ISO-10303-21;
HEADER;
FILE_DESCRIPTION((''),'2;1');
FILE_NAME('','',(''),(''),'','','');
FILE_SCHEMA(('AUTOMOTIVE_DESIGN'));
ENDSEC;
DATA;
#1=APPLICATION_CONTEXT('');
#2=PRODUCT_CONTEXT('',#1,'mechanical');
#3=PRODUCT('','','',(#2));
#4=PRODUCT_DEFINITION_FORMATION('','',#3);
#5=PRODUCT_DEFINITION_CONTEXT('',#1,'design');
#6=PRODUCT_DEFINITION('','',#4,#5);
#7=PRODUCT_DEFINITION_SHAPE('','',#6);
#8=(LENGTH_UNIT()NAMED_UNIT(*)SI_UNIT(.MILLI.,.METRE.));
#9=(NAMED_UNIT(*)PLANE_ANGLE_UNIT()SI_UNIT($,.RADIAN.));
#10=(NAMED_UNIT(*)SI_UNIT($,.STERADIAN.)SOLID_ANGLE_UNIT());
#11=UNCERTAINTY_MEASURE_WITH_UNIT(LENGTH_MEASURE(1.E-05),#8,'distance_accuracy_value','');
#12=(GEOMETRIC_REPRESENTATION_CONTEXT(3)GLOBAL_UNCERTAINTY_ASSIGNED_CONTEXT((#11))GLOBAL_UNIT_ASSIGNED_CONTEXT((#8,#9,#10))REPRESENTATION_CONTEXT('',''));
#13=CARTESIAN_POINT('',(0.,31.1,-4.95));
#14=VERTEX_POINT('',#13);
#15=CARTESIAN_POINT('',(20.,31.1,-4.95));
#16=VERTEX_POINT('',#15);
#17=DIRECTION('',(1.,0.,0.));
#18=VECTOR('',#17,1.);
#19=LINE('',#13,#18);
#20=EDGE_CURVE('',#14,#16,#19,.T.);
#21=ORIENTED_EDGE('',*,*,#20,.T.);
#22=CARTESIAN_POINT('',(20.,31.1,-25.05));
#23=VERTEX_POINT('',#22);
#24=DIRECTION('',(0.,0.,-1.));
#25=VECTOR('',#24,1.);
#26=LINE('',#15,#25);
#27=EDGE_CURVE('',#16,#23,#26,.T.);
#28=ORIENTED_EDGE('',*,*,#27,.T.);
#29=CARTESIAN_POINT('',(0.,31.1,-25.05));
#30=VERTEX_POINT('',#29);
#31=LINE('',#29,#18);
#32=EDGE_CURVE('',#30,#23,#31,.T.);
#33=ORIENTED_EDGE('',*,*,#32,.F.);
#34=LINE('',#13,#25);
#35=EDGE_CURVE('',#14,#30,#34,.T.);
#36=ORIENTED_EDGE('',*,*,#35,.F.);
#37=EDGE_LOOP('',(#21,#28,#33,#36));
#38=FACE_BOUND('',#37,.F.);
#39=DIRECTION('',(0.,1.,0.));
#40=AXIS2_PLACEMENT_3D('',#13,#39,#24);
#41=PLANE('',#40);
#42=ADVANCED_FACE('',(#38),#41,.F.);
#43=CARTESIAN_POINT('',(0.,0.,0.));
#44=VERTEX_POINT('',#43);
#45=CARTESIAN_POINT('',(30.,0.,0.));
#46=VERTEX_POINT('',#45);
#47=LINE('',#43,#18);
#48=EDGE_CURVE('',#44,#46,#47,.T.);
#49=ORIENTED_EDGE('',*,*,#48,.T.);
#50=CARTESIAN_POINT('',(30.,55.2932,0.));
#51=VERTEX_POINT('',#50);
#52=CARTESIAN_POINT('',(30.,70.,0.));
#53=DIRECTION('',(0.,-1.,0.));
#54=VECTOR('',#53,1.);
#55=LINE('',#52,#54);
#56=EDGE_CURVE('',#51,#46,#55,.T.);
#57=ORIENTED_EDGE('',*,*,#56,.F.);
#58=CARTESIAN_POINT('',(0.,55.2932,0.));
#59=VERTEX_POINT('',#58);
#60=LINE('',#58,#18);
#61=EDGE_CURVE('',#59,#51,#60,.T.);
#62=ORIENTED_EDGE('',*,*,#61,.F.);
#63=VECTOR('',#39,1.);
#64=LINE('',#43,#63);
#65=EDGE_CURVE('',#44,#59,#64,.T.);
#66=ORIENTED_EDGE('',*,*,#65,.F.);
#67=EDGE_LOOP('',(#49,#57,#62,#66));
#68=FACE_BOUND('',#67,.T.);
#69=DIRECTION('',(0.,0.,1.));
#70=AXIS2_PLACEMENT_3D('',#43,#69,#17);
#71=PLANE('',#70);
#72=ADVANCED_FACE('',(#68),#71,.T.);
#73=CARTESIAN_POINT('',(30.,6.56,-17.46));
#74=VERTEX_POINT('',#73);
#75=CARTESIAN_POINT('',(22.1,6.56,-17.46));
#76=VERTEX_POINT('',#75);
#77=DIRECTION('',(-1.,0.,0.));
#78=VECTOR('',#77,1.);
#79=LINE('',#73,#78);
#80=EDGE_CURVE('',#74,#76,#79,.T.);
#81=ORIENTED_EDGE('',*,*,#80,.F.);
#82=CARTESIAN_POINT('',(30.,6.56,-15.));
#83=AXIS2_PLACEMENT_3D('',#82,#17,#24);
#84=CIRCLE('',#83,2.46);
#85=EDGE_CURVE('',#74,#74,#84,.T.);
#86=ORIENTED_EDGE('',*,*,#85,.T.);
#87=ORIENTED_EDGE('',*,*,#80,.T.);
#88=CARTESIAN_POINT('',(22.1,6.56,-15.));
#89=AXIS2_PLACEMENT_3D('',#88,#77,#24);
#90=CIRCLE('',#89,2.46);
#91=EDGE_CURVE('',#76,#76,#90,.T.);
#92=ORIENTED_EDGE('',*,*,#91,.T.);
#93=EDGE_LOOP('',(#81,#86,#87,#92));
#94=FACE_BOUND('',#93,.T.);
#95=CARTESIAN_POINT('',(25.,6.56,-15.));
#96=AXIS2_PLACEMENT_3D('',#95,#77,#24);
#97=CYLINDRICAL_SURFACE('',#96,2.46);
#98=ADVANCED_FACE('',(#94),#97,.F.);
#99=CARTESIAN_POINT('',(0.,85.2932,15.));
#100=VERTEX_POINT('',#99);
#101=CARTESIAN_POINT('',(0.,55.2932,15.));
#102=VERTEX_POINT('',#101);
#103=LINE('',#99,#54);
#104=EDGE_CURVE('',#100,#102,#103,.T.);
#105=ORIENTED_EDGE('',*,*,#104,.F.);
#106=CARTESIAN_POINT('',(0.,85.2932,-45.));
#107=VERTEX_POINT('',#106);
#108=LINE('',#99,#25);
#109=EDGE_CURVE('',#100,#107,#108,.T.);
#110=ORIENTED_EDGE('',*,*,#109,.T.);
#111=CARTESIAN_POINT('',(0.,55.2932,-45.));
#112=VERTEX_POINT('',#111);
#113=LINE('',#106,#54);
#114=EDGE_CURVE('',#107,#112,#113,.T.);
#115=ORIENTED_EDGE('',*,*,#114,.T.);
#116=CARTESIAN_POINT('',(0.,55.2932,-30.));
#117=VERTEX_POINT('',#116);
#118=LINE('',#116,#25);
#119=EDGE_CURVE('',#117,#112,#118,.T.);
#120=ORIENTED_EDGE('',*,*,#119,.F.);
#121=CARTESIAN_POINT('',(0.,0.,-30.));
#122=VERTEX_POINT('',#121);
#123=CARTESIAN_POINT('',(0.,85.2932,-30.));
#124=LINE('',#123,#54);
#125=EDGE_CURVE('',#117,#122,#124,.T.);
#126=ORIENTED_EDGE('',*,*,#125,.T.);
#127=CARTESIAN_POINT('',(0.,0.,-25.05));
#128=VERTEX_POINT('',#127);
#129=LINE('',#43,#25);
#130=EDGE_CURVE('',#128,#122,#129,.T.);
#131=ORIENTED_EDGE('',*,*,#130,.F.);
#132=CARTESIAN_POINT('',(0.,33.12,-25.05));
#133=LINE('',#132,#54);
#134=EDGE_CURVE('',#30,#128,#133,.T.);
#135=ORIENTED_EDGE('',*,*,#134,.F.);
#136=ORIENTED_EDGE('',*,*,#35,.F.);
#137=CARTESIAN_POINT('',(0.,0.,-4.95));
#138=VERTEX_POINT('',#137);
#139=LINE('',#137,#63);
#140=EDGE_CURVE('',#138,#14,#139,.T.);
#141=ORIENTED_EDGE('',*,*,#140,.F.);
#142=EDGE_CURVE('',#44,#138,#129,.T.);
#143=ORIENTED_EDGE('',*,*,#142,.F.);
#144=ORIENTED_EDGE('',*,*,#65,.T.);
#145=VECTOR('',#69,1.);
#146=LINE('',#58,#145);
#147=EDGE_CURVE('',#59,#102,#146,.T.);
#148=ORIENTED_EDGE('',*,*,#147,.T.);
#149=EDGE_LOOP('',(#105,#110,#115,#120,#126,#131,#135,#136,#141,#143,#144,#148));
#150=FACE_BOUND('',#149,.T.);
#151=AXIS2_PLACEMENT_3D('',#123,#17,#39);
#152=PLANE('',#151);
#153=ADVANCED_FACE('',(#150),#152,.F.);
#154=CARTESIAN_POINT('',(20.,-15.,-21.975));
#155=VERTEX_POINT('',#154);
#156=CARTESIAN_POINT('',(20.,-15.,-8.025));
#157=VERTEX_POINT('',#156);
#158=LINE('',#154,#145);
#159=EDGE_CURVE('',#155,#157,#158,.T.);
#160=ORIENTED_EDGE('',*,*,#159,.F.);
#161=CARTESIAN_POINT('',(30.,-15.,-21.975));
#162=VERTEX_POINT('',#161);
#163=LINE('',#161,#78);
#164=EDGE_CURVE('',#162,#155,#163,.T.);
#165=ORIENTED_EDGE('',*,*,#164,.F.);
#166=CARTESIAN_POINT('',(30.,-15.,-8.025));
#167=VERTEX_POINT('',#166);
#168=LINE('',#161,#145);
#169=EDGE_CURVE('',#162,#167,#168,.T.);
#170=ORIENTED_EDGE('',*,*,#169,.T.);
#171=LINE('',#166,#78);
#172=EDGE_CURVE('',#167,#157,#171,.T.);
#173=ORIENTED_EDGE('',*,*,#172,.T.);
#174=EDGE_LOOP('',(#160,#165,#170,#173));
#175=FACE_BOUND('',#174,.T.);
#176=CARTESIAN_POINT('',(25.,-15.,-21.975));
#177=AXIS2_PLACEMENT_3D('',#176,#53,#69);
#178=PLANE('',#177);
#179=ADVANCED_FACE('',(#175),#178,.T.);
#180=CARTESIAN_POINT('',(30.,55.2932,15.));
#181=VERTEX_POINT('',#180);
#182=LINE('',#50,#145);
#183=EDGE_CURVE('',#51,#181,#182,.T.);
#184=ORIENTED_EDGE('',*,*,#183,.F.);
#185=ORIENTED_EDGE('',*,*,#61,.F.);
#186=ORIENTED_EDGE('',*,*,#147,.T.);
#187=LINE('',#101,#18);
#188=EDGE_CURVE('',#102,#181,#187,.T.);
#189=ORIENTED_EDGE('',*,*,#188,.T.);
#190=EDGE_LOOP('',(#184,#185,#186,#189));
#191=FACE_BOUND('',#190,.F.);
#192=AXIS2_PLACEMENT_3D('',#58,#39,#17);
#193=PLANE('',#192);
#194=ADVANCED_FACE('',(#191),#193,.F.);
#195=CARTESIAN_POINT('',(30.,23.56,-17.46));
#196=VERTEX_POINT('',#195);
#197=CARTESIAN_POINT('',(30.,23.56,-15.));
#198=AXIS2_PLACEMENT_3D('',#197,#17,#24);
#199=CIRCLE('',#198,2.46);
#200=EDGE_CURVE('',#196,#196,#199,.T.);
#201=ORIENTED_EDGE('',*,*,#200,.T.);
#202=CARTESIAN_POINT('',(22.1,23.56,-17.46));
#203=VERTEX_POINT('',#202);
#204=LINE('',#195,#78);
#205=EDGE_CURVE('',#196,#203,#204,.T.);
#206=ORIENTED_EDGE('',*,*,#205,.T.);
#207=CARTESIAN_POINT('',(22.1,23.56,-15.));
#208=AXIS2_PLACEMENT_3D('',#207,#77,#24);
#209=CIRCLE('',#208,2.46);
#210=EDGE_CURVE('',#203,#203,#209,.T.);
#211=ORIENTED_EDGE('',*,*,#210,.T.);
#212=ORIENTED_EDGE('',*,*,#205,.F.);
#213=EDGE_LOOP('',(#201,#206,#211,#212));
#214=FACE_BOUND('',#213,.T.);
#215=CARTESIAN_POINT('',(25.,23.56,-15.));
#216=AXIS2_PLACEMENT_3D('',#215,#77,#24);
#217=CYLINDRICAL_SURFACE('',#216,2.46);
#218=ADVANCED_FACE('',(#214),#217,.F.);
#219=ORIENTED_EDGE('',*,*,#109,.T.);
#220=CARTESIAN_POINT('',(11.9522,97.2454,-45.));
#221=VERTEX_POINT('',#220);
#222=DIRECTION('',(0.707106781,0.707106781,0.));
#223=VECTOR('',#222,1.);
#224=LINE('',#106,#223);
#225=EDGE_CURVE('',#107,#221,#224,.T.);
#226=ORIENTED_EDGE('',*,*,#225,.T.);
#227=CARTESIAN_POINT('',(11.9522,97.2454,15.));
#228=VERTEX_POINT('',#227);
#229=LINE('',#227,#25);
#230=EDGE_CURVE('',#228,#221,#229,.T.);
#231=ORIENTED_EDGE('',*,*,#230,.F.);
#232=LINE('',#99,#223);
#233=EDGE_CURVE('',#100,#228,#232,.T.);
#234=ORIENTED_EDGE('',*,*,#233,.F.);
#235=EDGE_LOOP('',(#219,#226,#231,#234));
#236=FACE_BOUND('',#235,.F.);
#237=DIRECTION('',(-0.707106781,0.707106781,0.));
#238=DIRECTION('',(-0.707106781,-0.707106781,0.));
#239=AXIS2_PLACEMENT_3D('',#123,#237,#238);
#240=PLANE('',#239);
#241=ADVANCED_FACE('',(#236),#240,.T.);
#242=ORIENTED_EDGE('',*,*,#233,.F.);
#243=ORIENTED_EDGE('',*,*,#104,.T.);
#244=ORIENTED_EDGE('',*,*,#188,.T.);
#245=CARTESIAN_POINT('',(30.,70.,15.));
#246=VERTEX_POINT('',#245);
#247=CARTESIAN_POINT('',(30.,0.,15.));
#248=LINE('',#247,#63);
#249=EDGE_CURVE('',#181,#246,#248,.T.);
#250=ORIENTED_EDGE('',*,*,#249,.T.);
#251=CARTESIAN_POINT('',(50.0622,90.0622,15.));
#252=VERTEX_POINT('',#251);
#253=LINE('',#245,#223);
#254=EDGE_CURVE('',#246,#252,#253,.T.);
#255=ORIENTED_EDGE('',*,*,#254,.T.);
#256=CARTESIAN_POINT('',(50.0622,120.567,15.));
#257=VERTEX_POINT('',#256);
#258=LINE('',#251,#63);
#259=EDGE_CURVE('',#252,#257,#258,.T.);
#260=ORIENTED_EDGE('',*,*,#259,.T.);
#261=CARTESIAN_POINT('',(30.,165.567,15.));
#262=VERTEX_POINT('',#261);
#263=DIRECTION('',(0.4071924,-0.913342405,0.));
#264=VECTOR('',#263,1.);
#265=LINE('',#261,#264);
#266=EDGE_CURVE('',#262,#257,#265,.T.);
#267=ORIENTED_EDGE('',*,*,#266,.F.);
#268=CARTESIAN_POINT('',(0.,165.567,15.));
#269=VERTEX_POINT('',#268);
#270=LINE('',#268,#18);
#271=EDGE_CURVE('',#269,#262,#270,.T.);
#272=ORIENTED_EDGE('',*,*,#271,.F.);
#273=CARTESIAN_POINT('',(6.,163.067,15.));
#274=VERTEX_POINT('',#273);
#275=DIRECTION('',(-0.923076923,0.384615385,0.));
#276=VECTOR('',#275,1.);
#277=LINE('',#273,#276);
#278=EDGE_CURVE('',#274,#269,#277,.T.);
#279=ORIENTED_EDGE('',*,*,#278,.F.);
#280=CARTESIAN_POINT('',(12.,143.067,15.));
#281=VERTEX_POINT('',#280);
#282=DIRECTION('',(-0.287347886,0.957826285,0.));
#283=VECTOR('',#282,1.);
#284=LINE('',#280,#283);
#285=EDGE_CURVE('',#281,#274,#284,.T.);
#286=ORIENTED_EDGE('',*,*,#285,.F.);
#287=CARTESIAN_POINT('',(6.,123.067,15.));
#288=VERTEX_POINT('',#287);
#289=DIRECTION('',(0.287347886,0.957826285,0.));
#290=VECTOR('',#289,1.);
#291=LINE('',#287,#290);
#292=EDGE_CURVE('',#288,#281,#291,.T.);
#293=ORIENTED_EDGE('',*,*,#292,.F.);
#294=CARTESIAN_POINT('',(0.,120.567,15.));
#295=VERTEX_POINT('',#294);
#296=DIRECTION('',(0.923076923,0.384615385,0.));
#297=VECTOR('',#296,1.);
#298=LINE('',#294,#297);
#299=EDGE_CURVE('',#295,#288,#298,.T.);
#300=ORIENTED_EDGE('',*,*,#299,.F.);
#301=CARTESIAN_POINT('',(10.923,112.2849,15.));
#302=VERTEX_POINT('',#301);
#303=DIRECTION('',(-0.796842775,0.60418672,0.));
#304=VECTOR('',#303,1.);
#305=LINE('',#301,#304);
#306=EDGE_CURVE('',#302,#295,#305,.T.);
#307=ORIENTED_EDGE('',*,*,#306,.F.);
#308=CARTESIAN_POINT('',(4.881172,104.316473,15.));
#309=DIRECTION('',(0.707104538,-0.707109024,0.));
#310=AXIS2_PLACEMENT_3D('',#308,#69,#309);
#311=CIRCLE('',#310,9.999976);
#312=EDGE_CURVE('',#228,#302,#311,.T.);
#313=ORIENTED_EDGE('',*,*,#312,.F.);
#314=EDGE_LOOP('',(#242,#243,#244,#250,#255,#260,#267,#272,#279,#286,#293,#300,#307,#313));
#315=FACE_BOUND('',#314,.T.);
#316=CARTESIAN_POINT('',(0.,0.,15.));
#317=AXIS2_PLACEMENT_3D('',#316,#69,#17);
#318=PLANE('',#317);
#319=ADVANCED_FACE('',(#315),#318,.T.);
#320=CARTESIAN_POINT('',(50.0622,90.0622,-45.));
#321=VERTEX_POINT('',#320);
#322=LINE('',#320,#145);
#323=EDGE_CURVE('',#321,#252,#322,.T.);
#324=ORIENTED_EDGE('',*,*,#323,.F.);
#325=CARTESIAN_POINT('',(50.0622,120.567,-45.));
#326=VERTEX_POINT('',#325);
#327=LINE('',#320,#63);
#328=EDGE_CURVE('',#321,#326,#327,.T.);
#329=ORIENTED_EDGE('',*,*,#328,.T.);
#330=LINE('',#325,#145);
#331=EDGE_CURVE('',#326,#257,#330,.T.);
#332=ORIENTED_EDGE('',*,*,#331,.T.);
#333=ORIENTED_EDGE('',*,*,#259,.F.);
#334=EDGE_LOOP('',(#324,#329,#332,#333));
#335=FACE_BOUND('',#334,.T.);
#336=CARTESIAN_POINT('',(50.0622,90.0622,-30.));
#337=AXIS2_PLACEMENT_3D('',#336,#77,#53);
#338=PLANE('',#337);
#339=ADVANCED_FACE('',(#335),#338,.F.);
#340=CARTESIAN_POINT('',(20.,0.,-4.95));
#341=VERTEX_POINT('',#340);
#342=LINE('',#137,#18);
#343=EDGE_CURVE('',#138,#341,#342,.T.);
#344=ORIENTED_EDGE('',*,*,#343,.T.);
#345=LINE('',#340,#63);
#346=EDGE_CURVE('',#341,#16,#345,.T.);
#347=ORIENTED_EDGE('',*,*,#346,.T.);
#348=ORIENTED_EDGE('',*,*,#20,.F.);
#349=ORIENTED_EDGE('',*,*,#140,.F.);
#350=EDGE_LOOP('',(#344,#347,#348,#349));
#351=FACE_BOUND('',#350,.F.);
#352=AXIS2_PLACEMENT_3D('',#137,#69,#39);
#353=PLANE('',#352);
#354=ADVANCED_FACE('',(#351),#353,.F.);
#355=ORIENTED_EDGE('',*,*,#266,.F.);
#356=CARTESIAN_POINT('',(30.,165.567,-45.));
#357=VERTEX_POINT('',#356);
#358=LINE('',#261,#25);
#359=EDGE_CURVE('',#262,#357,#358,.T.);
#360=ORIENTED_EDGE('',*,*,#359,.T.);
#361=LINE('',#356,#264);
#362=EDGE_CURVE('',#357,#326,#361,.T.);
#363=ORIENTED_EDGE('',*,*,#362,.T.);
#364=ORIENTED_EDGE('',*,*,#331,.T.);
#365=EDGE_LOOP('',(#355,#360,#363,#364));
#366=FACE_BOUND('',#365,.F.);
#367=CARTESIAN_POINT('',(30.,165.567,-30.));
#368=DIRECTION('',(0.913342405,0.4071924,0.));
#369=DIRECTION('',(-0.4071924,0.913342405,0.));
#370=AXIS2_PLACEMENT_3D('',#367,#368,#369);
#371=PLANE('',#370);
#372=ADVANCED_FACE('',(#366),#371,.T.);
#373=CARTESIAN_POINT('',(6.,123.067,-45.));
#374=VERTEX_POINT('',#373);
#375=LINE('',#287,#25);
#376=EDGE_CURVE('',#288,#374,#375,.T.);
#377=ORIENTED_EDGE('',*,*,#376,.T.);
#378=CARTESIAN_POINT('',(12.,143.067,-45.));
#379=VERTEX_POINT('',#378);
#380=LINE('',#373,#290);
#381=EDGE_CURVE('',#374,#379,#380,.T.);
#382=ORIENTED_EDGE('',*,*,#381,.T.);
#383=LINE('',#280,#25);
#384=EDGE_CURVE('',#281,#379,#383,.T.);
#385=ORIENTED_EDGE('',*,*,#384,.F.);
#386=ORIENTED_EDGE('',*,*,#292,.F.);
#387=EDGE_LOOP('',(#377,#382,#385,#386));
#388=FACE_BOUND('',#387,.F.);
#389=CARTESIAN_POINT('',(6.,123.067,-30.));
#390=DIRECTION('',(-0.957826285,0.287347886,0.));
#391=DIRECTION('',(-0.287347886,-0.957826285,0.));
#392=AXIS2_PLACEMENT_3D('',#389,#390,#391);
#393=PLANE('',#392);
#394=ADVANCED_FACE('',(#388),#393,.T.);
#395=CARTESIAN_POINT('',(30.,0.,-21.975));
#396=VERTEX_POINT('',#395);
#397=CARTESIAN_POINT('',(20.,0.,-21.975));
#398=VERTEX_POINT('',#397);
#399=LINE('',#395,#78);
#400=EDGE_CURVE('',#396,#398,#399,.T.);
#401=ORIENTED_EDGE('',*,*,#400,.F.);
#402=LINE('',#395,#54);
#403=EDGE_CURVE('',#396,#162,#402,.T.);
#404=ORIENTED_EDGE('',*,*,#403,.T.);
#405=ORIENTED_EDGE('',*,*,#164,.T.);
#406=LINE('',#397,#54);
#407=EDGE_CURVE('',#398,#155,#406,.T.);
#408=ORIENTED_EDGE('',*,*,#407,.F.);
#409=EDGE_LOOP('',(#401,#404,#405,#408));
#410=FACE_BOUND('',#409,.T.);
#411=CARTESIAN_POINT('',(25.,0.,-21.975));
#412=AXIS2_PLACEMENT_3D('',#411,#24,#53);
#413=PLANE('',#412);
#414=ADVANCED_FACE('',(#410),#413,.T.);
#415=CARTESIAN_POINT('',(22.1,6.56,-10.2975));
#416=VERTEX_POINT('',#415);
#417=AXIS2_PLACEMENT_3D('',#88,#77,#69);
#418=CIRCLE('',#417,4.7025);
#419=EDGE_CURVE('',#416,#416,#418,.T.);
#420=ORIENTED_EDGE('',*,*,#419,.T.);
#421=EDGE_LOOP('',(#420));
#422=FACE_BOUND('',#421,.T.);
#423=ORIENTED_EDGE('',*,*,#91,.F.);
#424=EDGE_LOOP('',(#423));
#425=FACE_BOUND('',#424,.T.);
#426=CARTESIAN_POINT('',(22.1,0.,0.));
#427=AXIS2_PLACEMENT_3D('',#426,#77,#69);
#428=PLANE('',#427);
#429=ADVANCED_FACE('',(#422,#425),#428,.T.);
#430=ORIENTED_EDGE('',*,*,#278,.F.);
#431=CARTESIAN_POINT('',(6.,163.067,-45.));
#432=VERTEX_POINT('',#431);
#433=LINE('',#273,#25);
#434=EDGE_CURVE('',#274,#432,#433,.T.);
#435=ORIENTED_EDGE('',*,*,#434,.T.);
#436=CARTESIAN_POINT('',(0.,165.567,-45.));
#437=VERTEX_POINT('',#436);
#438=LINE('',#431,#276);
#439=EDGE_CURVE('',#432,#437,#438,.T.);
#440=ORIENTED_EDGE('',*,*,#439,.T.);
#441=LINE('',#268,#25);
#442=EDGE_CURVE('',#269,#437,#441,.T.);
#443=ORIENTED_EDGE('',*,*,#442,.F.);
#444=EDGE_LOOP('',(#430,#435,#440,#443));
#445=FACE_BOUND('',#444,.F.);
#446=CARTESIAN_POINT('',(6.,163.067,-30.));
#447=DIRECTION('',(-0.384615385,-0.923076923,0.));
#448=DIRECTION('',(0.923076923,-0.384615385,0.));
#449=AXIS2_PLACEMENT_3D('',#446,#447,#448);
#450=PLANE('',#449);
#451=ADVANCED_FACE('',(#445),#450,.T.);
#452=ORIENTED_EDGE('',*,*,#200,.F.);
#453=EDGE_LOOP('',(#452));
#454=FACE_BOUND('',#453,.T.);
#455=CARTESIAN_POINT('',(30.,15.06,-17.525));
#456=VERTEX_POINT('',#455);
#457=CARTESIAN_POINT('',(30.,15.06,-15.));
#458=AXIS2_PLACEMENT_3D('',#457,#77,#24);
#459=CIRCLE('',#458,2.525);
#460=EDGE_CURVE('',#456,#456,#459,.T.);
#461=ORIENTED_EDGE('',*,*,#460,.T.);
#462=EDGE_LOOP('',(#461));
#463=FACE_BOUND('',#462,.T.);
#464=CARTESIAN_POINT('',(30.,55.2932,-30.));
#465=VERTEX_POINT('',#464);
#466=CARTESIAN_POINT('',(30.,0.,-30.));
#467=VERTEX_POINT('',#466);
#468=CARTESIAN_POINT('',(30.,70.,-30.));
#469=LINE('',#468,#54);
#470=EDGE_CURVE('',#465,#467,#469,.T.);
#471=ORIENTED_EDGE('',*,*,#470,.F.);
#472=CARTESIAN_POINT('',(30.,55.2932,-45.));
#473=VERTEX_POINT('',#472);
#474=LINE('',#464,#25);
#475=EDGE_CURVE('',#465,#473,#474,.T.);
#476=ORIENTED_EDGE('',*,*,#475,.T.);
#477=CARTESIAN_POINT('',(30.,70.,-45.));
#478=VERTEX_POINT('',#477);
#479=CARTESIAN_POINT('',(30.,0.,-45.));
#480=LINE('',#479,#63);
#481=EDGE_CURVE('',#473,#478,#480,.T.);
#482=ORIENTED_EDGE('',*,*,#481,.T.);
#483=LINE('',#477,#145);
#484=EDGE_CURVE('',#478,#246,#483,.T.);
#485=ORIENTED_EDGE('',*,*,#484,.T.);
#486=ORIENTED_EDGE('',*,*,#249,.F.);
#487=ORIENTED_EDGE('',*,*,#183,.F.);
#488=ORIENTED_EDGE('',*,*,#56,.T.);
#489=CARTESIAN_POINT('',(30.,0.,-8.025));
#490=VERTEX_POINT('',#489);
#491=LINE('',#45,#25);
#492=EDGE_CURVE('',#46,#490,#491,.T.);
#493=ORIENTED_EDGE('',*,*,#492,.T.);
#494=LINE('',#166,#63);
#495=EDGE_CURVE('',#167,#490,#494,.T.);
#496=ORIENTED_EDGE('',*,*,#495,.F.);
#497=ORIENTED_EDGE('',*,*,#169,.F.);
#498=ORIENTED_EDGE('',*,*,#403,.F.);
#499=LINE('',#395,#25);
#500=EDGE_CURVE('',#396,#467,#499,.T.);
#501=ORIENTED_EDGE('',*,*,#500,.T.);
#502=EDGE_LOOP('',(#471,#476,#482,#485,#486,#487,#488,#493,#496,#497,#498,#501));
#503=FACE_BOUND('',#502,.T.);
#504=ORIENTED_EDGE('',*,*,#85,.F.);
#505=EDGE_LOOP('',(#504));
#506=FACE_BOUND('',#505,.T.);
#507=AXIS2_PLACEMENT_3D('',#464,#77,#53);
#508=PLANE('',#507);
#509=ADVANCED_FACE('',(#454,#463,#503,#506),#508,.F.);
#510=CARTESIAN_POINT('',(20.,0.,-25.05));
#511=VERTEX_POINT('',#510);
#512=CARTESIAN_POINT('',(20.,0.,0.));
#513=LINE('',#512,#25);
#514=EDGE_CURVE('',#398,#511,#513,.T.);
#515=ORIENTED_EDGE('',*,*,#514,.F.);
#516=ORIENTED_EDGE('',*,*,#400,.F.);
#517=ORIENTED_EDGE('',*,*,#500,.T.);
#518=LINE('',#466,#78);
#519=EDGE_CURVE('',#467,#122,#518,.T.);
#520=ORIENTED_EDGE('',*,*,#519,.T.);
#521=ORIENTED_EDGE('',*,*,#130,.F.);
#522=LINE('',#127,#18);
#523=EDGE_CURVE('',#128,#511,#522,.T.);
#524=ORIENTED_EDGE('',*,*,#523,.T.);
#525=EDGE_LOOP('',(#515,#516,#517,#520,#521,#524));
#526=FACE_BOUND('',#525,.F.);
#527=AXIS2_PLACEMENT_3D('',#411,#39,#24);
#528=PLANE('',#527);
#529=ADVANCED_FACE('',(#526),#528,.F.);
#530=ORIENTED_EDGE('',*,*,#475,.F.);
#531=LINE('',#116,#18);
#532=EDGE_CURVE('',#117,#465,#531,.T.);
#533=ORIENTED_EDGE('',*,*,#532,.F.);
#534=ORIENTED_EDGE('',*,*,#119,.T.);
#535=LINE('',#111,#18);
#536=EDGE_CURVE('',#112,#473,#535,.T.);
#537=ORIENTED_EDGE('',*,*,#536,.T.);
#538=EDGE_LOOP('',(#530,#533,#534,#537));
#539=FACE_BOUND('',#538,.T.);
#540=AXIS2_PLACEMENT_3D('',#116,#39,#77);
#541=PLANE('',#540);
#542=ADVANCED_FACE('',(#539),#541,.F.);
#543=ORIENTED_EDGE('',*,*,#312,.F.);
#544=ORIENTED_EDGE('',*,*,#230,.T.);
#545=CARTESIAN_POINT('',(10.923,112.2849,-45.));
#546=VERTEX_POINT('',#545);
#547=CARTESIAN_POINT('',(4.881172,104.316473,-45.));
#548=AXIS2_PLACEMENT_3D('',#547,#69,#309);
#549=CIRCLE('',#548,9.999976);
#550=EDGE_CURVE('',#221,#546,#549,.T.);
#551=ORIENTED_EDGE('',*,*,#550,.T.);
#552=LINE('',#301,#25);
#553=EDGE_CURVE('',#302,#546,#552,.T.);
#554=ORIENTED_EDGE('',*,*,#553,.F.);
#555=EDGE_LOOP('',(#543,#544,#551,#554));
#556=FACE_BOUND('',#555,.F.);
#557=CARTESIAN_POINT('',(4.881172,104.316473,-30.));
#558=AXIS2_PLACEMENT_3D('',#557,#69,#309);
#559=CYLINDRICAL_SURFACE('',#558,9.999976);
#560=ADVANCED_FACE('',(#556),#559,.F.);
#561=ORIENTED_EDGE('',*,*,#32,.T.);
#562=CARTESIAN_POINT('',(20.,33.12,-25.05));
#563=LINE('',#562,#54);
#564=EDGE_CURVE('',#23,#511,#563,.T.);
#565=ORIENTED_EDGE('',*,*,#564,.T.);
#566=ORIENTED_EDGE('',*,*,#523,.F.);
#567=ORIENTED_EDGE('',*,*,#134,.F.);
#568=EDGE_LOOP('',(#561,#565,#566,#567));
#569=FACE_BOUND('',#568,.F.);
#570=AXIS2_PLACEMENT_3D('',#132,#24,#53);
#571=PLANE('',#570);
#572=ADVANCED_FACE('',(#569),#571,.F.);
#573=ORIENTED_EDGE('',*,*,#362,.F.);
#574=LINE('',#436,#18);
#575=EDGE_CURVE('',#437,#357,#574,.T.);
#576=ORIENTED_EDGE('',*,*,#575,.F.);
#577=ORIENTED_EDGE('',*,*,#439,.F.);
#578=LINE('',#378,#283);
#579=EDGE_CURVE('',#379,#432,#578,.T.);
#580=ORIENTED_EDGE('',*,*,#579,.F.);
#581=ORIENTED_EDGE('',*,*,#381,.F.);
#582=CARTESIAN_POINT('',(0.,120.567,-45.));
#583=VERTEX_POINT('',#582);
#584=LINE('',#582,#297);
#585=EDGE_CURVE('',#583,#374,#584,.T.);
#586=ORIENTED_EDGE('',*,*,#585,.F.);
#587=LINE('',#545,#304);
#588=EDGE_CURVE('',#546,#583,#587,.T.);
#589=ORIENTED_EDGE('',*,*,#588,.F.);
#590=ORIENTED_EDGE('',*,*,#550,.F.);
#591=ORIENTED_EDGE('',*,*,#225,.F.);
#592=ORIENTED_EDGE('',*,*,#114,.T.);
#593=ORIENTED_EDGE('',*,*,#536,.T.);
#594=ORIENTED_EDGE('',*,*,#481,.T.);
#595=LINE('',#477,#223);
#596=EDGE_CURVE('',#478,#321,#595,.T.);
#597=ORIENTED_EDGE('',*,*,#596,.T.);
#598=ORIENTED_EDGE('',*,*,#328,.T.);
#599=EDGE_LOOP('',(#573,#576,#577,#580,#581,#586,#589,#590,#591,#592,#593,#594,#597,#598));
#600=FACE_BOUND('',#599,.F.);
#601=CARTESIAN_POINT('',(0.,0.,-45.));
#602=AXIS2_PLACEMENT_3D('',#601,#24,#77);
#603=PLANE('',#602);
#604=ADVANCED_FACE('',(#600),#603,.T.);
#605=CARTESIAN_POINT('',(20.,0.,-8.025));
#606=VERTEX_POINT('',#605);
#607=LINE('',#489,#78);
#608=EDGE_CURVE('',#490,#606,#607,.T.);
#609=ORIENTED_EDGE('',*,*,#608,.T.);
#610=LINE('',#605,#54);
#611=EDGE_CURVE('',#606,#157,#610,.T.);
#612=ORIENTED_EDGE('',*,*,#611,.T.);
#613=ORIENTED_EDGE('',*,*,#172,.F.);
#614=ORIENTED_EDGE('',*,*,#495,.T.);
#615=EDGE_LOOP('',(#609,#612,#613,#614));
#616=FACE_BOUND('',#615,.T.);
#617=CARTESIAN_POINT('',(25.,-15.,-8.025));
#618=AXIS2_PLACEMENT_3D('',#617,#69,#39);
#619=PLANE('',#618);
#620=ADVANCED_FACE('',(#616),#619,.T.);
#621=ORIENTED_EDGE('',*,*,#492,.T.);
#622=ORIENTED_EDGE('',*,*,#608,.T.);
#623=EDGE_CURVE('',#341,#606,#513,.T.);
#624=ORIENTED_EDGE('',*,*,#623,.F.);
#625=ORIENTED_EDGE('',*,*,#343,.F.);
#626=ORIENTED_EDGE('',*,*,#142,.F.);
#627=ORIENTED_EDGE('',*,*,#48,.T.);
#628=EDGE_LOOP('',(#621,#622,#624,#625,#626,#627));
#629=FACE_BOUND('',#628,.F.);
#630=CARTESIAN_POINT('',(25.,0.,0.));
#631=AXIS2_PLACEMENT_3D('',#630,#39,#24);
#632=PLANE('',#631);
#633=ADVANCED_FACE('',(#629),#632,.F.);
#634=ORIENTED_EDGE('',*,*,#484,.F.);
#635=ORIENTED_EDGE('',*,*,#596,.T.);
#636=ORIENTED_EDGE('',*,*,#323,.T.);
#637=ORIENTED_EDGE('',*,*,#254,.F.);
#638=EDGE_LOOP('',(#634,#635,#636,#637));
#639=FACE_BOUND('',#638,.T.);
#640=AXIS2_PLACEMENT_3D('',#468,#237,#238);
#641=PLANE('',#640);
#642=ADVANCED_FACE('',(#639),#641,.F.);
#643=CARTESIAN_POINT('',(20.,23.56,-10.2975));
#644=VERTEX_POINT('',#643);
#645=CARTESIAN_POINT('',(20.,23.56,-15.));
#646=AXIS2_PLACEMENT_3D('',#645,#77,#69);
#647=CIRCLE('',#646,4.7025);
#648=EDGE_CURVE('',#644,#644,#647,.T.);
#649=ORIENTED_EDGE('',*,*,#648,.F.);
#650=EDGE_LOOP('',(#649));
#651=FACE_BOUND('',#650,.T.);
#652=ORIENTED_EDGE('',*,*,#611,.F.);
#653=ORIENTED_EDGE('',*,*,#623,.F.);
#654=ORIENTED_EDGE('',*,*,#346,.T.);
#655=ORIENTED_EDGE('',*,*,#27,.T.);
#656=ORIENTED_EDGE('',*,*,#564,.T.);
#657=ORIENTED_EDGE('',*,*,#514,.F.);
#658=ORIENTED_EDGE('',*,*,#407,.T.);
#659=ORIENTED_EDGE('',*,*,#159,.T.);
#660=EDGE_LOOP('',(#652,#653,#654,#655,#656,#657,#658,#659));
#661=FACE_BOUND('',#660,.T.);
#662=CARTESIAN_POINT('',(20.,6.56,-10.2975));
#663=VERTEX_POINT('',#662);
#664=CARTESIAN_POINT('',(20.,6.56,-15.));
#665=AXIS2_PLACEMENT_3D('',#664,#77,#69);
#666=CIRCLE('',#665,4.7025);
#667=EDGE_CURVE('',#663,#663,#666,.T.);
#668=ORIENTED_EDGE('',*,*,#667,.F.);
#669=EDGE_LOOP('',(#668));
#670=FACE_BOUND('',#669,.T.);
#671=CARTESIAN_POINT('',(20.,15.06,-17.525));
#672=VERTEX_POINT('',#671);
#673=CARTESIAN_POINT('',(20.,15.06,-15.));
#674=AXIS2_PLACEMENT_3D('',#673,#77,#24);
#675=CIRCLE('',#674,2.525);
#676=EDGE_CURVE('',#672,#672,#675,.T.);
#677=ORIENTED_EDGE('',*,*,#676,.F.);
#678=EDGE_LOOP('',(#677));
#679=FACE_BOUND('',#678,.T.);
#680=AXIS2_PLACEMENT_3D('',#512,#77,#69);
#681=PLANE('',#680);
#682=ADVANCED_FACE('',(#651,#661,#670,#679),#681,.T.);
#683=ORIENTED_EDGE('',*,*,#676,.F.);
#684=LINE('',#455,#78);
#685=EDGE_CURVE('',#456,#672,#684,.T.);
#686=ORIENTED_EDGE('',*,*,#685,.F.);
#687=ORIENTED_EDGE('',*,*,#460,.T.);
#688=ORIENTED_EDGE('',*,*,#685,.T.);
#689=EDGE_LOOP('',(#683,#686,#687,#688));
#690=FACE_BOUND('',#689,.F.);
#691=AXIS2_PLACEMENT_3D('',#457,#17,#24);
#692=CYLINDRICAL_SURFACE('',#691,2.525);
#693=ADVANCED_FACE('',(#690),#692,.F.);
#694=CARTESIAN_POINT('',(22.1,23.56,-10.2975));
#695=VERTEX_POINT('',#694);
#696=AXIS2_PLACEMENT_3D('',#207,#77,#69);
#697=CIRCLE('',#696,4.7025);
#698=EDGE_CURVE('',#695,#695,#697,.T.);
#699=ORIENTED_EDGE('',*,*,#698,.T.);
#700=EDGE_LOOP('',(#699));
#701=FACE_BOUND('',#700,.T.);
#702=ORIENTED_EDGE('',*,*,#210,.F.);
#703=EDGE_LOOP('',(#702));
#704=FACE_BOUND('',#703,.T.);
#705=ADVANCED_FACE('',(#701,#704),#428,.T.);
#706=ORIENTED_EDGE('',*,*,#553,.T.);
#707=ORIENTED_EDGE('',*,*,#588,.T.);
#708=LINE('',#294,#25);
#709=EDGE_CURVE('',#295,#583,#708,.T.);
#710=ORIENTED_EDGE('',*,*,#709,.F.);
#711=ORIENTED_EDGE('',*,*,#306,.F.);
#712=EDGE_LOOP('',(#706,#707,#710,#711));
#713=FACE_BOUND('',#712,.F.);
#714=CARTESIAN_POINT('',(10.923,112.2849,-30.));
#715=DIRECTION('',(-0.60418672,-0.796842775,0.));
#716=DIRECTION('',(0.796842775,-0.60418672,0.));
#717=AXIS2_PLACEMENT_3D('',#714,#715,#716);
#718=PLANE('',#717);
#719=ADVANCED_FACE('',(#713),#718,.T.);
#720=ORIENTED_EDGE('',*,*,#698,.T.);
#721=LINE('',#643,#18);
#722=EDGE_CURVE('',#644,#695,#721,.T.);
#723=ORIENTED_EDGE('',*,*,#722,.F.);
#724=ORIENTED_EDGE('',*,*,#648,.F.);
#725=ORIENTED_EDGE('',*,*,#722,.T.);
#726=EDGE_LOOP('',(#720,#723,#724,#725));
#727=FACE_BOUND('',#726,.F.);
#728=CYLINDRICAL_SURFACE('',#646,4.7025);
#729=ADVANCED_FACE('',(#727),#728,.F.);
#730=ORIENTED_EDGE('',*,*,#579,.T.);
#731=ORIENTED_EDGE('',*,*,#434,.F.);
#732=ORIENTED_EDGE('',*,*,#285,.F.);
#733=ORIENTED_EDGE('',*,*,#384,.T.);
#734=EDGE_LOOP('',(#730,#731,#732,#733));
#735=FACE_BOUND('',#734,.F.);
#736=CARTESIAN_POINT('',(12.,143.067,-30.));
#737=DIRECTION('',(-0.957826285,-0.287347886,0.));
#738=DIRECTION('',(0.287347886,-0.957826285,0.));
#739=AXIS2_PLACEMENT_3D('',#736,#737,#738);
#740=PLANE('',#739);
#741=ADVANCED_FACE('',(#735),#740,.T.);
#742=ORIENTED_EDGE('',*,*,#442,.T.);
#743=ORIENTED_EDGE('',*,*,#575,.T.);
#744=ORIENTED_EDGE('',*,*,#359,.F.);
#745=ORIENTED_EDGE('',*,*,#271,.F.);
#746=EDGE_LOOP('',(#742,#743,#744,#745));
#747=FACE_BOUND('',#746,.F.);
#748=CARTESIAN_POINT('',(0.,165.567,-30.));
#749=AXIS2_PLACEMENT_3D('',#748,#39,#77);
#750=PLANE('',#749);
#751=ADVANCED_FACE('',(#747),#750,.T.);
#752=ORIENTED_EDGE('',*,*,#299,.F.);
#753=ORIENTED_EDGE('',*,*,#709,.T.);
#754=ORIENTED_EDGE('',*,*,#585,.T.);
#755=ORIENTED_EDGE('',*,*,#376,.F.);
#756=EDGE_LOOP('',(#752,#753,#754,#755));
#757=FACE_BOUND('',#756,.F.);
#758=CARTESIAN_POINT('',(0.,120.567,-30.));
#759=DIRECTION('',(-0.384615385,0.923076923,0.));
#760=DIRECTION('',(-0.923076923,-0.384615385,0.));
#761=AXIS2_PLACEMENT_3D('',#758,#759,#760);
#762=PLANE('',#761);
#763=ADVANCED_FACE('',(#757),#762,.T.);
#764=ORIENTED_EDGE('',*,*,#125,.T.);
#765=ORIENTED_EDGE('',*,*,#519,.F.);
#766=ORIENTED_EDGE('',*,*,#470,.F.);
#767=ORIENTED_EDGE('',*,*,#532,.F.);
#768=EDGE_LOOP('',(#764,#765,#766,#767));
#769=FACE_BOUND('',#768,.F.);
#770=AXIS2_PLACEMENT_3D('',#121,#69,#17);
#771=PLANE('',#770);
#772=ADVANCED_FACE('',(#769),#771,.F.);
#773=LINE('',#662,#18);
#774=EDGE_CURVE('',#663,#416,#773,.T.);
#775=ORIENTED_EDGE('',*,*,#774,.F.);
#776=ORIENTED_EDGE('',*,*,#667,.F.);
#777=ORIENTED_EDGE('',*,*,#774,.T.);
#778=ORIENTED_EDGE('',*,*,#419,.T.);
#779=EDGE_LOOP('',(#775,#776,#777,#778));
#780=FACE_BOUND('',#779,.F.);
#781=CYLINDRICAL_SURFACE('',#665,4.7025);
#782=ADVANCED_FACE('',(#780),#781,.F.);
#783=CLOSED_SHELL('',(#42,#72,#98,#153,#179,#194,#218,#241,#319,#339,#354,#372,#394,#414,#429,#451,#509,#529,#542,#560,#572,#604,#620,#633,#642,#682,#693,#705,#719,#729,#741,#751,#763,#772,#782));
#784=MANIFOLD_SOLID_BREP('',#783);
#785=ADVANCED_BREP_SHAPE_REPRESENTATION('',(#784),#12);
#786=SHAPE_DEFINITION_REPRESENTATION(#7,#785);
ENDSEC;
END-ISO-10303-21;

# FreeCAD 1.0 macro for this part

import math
import FreeCAD as App
import Part
import Sketcher
Q = App.Units.Quantity

doc = App.newDocument("Part")
body = doc.addObject("PartDesign::Body", "Body")

# Sketch on XY plane
sketch1 = doc.addObject("Sketcher::SketchObject", "Sketch")
body.addObject(sketch1)
sketch1.AttachmentSupport = (doc.XY_Plane, [""])
sketch1.MapMode = "FlatFace"
sketch1.addGeometry([
    Part.LineSegment(App.Vector(0, 40, 0), App.Vector(0, 0, 0)),
    Part.LineSegment(App.Vector(0, 0, 0), App.Vector(25, 0, 0)),
    Part.LineSegment(App.Vector(25, 0, 0), App.Vector(25, 40, 0)),
    Part.LineSegment(App.Vector(25, 40, 0), App.Vector(0, 40, 0)),
], False)
sketch1.addConstraint([
    Sketcher.Constraint("Coincident", 0, 2, 1, 1),
    Sketcher.Constraint("Coincident", 1, 2, 2, 1),
    Sketcher.Constraint("Coincident", 2, 2, 3, 1),
    Sketcher.Constraint("Coincident", 3, 2, 0, 1),
    Sketcher.Constraint("Vertical", 0),
    Sketcher.Constraint("Horizontal", 1),
    Sketcher.Constraint("Vertical", 2),
    Sketcher.Constraint("Horizontal", 3),
    Sketcher.Constraint("Coincident", 0, 2, -1, 1),
    Sketcher.Constraint("DistanceX", 1, 1, 1, 2, Q("25 mm")),
    Sketcher.Constraint("DistanceY", 0, 2, 0, 1, Q("40 mm")),
])
pad1 = doc.addObject("PartDesign::Pad", "Pad")
body.addObject(pad1)
pad1.Profile = sketch1
pad1.Length = 30
pad1.Reversed = True

# Sketch on YZ plane
sketch2 = doc.addObject("Sketcher::SketchObject", "Sketch001")
body.addObject(sketch2)
sketch2.AttachmentSupport = (doc.YZ_Plane, [""])
sketch2.MapMode = "FlatFace"
sketch2.AttachmentOffset = App.Placement(App.Vector(0, 0, 25), App.Rotation())
sketch2.addGeometry(Part.Circle(App.Vector(6.6, -15, 0), App.Vector(0, 0, 1), 2.5), False)
sketch2.addConstraint([
    Sketcher.Constraint("Diameter", 0, Q("4.92 mm")),
    Sketcher.Constraint("DistanceY", 0, 3, -1, 1, Q("15 mm")),
    Sketcher.Constraint("DistanceX", -1, 1, 0, 3, Q("6.56 mm")),
])
pocket1 = doc.addObject("PartDesign::Pocket", "Pocket")
body.addObject(pocket1)
pocket1.Profile = sketch2
pocket1.Length = 30

# Sketch on YZ plane
sketch3 = doc.addObject("Sketcher::SketchObject", "Sketch002")
body.addObject(sketch3)
sketch3.AttachmentSupport = (doc.YZ_Plane, [""])
sketch3.MapMode = "FlatFace"
sketch3.addGeometry([
    Part.LineSegment(App.Vector(0, -25, 0), App.Vector(0, -5, 0)),
    Part.LineSegment(App.Vector(0, -5, 0), App.Vector(33, -5, 0)),
    Part.LineSegment(App.Vector(33, -5, 0), App.Vector(33, -25, 0)),
    Part.LineSegment(App.Vector(33, -25, 0), App.Vector(0, -25, 0)),
], False)
sketch3.addConstraint([
    Sketcher.Constraint("Coincident", 0, 2, 1, 1),
    Sketcher.Constraint("Coincident", 1, 2, 2, 1),
    Sketcher.Constraint("Coincident", 2, 2, 3, 1),
    Sketcher.Constraint("Coincident", 3, 2, 0, 1),
    Sketcher.Constraint("Vertical", 0),
    Sketcher.Constraint("Horizontal", 1),
    Sketcher.Constraint("Vertical", 2),
    Sketcher.Constraint("Horizontal", 3),
    Sketcher.Constraint("PointOnObject", 0, 2, -2),
    Sketcher.Constraint("DistanceY", 0, 1, 0, 2, Q("20.1 mm")),
    Sketcher.Constraint("DistanceX", 1, 1, 1, 2, Q("33.12 mm")),
    Sketcher.Constraint("DistanceY", 0, 2, -1, 1, Q("4.95 mm")),
])
pocket2 = doc.addObject("PartDesign::Pocket", "Pocket001")
body.addObject(pocket2)
pocket2.Profile = sketch3
pocket2.Length = 20
pocket2.Reversed = True

# Sketch on XZ plane
sketch4 = doc.addObject("Sketcher::SketchObject", "Sketch003")
body.addObject(sketch4)
sketch4.AttachmentSupport = (doc.XZ_Plane, [""])
sketch4.MapMode = "FlatFace"
sketch4.addGeometry([
    Part.LineSegment(App.Vector(25, -8, 0), App.Vector(20, -8, 0)),
    Part.LineSegment(App.Vector(20, -8, 0), App.Vector(20, -22, 0)),
    Part.LineSegment(App.Vector(20, -22, 0), App.Vector(25, -22, 0)),
    Part.LineSegment(App.Vector(25, -22, 0), App.Vector(25, -8, 0)),
], False)
sketch4.addConstraint([
    Sketcher.Constraint("Coincident", 0, 2, 1, 1),
    Sketcher.Constraint("Coincident", 1, 2, 2, 1),
    Sketcher.Constraint("Coincident", 2, 2, 3, 1),
    Sketcher.Constraint("Coincident", 3, 2, 0, 1),
    Sketcher.Constraint("Horizontal", 0),
    Sketcher.Constraint("Vertical", 1),
    Sketcher.Constraint("Horizontal", 2),
    Sketcher.Constraint("Vertical", 3),
    Sketcher.Constraint("DistanceY", 1, 2, 1, 1, Q("13.95 mm")),
    Sketcher.Constraint("DistanceX", 0, 2, 0, 1, Q("5 mm")),
    Sketcher.Constraint("DistanceX", -1, 1, 0, 2, Q("20 mm")),
    Sketcher.Constraint("DistanceY", 0, 2, -1, 1, Q("8.025 mm")),
])
pad2 = doc.addObject("PartDesign::Pad", "Pad001")
body.addObject(pad2)
pad2.Profile = sketch4
pad2.Length = 15

# Sketch on YZ plane
sketch5 = doc.addObject("Sketcher::SketchObject", "Sketch004")
body.addObject(sketch5)
sketch5.AttachmentSupport = (doc.YZ_Plane, [""])
sketch5.MapMode = "FlatFace"
sketch5.AttachmentOffset = App.Placement(App.Vector(0, 0, 20), App.Rotation())
sketch5.addGeometry([
    Part.Circle(App.Vector(6.6, -15, 0), App.Vector(0, 0, 1), 4.7),
    Part.Circle(App.Vector(6.6, -15, 0), App.Vector(0, 0, 1), 2.5),
], False)
sketch5.addConstraint([
    Sketcher.Constraint("Coincident", 1, 3, 0, 3),
    Sketcher.Constraint("Diameter", 0, Q("9.405 mm")),
    Sketcher.Constraint("Diameter", 1, Q("4.92 mm")),
    Sketcher.Constraint("DistanceY", 0, 3, -1, 1, Q("15 mm")),
    Sketcher.Constraint("DistanceX", -1, 1, 0, 3, Q("6.56 mm")),
])
pocket3 = doc.addObject("PartDesign::Pocket", "Pocket002")
body.addObject(pocket3)
pocket3.Profile = sketch5
pocket3.Length = 2.1
pocket3.Reversed = True

# Sketch on YZ plane
sketch6 = doc.addObject("Sketcher::SketchObject", "Sketch005")
body.addObject(sketch6)
sketch6.AttachmentSupport = (doc.YZ_Plane, [""])
sketch6.MapMode = "FlatFace"
sketch6.AttachmentOffset = App.Placement(App.Vector(0, 0, 25), App.Rotation())
sketch6.addGeometry(Part.Circle(App.Vector(23.6, -15, 0), App.Vector(0, 0, 1), 2.5), False)
sketch6.addConstraint([
    Sketcher.Constraint("Diameter", 0, Q("4.92 mm")),
    Sketcher.Constraint("DistanceY", 0, 3, -1, 1, Q("15 mm")),
    Sketcher.Constraint("DistanceX", -1, 1, 0, 3, Q("23.56 mm")),
])
pocket4 = doc.addObject("PartDesign::Pocket", "Pocket003")
body.addObject(pocket4)
pocket4.Profile = sketch6
pocket4.Length = 10

# Sketch on YZ plane
sketch7 = doc.addObject("Sketcher::SketchObject", "Sketch006")
body.addObject(sketch7)
sketch7.AttachmentSupport = (doc.YZ_Plane, [""])
sketch7.MapMode = "FlatFace"
sketch7.AttachmentOffset = App.Placement(App.Vector(0, 0, 20), App.Rotation())
sketch7.addGeometry([
    Part.Circle(App.Vector(23.6, -15, 0), App.Vector(0, 0, 1), 4.7),
    Part.Circle(App.Vector(23.6, -15, 0), App.Vector(0, 0, 1), 2.5),
], False)
sketch7.addConstraint([
    Sketcher.Constraint("Coincident", 1, 3, 0, 3),
    Sketcher.Constraint("Diameter", 0, Q("9.405 mm")),
    Sketcher.Constraint("Diameter", 1, Q("4.92 mm")),
    Sketcher.Constraint("DistanceY", 0, 3, -1, 1, Q("15 mm")),
    Sketcher.Constraint("DistanceX", -1, 1, 0, 3, Q("23.56 mm")),
])
pocket5 = doc.addObject("PartDesign::Pocket", "Pocket004")
body.addObject(pocket5)
pocket5.Profile = sketch7
pocket5.Length = 2.1
pocket5.Reversed = True

# Sketch on YZ plane
sketch8 = doc.addObject("Sketcher::SketchObject", "Sketch007")
body.addObject(sketch8)
sketch8.AttachmentSupport = (doc.YZ_Plane, [""])
sketch8.MapMode = "FlatFace"
sketch8.AttachmentOffset = App.Placement(App.Vector(0, 0, 25), App.Rotation())
sketch8.addGeometry([
    Part.LineSegment(App.Vector(0, -30, 0), App.Vector(40, -30, 0)),  # 0
    Part.LineSegment(App.Vector(40, -30, 0), App.Vector(40, 0, 0)),  # 1
    Part.LineSegment(App.Vector(40, 0, 0), App.Vector(0, 0, 0)),  # 2
    Part.LineSegment(App.Vector(0, 0, 0), App.Vector(0, -8, 0)),  # 3
    Part.LineSegment(App.Vector(0, -8, 0), App.Vector(-15, -8, 0)),  # 4
    Part.LineSegment(App.Vector(-15, -8, 0), App.Vector(-15, -22, 0)),  # 5
    Part.LineSegment(App.Vector(-15, -22, 0), App.Vector(0, -22, 0)),  # 6
    Part.LineSegment(App.Vector(0, -22, 0), App.Vector(0, -30, 0)),  # 7
    Part.Circle(App.Vector(6.6, -15, 0), App.Vector(0, 0, 1), 2.5),  # 8
    Part.Circle(App.Vector(23.6, -15, 0), App.Vector(0, 0, 1), 2.5),  # 9
], False)
sketch8.addConstraint([
    Sketcher.Constraint("Coincident", 0, 2, 1, 1),
    Sketcher.Constraint("Coincident", 1, 2, 2, 1),
    Sketcher.Constraint("Coincident", 2, 2, 3, 1),
    Sketcher.Constraint("Coincident", 3, 2, 4, 1),
    Sketcher.Constraint("Coincident", 4, 2, 5, 1),
    Sketcher.Constraint("Coincident", 5, 2, 6, 1),
    Sketcher.Constraint("Coincident", 6, 2, 7, 1),
    Sketcher.Constraint("Coincident", 7, 2, 0, 1),
    Sketcher.Constraint("Horizontal", 0),
    Sketcher.Constraint("Vertical", 1),
    Sketcher.Constraint("Horizontal", 2),
    Sketcher.Constraint("Vertical", 3),
    Sketcher.Constraint("Horizontal", 4),
    Sketcher.Constraint("Vertical", 5),
    Sketcher.Constraint("Horizontal", 6),
    Sketcher.Constraint("Vertical", 7),
    Sketcher.Constraint("Coincident", 2, 2, -1, 1),
    Sketcher.Constraint("Equal", 8, 9),
    Sketcher.Constraint("PointOnObject", 6, 2, -2),
    Sketcher.Constraint("Horizontal", 8, 3, 9, 3),
    Sketcher.Constraint("Equal", 3, 7),
    Sketcher.Constraint("Diameter", 8, Q("4.92 mm")),
    Sketcher.Constraint("DistanceX", 0, 1, 0, 2, Q("40 mm")),
    Sketcher.Constraint("DistanceX", 4, 2, 4, 1, Q("15 mm")),
    Sketcher.Constraint("DistanceY", 1, 1, 1, 2, Q("30 mm")),
    Sketcher.Constraint("DistanceY", 8, 3, -1, 1, Q("15 mm")),
    Sketcher.Constraint("DistanceX", 8, 3, 9, 3, Q("17 mm")),
    Sketcher.Constraint("DistanceY", 5, 2, 5, 1, Q("13.95 mm")),
    Sketcher.Constraint("DistanceX", -1, 1, 8, 3, Q("6.56 mm")),
])
pad3 = doc.addObject("PartDesign::Pad", "Pad002")
body.addObject(pad3)
pad3.Profile = sketch8
pad3.Length = 5

# Sketch on XZ plane
sketch9 = doc.addObject("Sketcher::SketchObject", "Sketch008")
body.addObject(sketch9)
sketch9.AttachmentSupport = (doc.XZ_Plane, [""])
sketch9.MapMode = "FlatFace"
sketch9.AttachmentOffset = App.Placement(App.Vector(0, 0, -40), App.Rotation())
sketch9.addGeometry([
    Part.LineSegment(App.Vector(30, -30, 0), App.Vector(0, -30, 0)),
    Part.LineSegment(App.Vector(0, -30, 0), App.Vector(0, 0, 0)),
    Part.LineSegment(App.Vector(0, 0, 0), App.Vector(30, 0, 0)),
    Part.LineSegment(App.Vector(30, 0, 0), App.Vector(30, -30, 0)),
], False)
sketch9.addConstraint([
    Sketcher.Constraint("Coincident", 0, 2, 1, 1),
    Sketcher.Constraint("Coincident", 1, 2, 2, 1),
    Sketcher.Constraint("Coincident", 2, 2, 3, 1),
    Sketcher.Constraint("Coincident", 3, 2, 0, 1),
    Sketcher.Constraint("Horizontal", 0),
    Sketcher.Constraint("Vertical", 1),
    Sketcher.Constraint("Horizontal", 2),
    Sketcher.Constraint("Vertical", 3),
    Sketcher.Constraint("Coincident", 1, 2, -1, 1),
    Sketcher.Constraint("Equal", 2, 1),
    Sketcher.Constraint("DistanceX", 0, 2, 0, 1, Q("30 mm")),
])
pad4 = doc.addObject("PartDesign::Pad", "Pad003")
body.addObject(pad4)
pad4.Profile = sketch9
pad4.Length = 30
pad4.Reversed = True

# Sketch on YZ plane
sketch10 = doc.addObject("Sketcher::SketchObject", "Sketch009")
body.addObject(sketch10)
sketch10.AttachmentSupport = (doc.YZ_Plane, [""])
sketch10.MapMode = "FlatFace"
sketch10.AttachmentOffset = App.Placement(App.Vector(0, 0, 30), App.Rotation())
sketch10.addGeometry(Part.Circle(App.Vector(15.1, -15, 0), App.Vector(0, 0, 1), 2.5), False)
sketch10.addConstraint([
    Sketcher.Constraint("Diameter", 0, Q("5.05 mm")),
    Sketcher.Constraint("DistanceY", 0, 3, -1, 1, Q("15 mm")),
    Sketcher.Constraint("DistanceX", -1, 1, 0, 3, Q("15.06 mm")),
])
pocket6 = doc.addObject("PartDesign::Pocket", "Pocket005")
body.addObject(pocket6)
pocket6.Profile = sketch10
pocket6.Length = 30

# Sketch on YZ plane
sketch11 = doc.addObject("Sketcher::SketchObject", "Sketch010")
body.addObject(sketch11)
sketch11.AttachmentSupport = (doc.YZ_Plane, [""])
sketch11.MapMode = "FlatFace"
sketch11.addGeometry([
    Part.LineSegment(App.Vector(33.1, -5, 0), App.Vector(33.1, -25.1, 0)),
    Part.LineSegment(App.Vector(33.1, -25.1, 0), App.Vector(31.1, -25.1, 0)),
    Part.LineSegment(App.Vector(31.1, -25.1, 0), App.Vector(31.1, -5, 0)),
    Part.LineSegment(App.Vector(31.1, -5, 0), App.Vector(33.1, -5, 0)),
], False)
sketch11.addConstraint([
    Sketcher.Constraint("Coincident", 0, 2, 1, 1),
    Sketcher.Constraint("Coincident", 1, 2, 2, 1),
    Sketcher.Constraint("Coincident", 2, 2, 3, 1),
    Sketcher.Constraint("Coincident", 3, 2, 0, 1),
    Sketcher.Constraint("Vertical", 0),
    Sketcher.Constraint("Horizontal", 1),
    Sketcher.Constraint("Vertical", 2),
    Sketcher.Constraint("Horizontal", 3),
    Sketcher.Constraint("DistanceX", 1, 2, 1, 1, Q("2.02 mm")),
    Sketcher.Constraint("DistanceY", 0, 2, 0, 1, Q("20.1 mm")),
    Sketcher.Constraint("DistanceX", -1, 1, 1, 2, Q("31.1 mm")),
    Sketcher.Constraint("DistanceY", 0, 2, -1, 1, Q("25.05 mm")),
])
pad5 = doc.addObject("PartDesign::Pad", "Pad004")
body.addObject(pad5)
pad5.Profile = sketch11
pad5.Length = 20

# Sketch on XY plane
sketch12 = doc.addObject("Sketcher::SketchObject", "Sketch011")
body.addObject(sketch12)
sketch12.AttachmentSupport = (doc.XY_Plane, [""])
sketch12.MapMode = "FlatFace"
sketch12.addGeometry([
    Part.LineSegment(App.Vector(0, 85, 0), App.Vector(0, 70, 0)),  # 0
    Part.LineSegment(App.Vector(0, 70, 0), App.Vector(30, 70, 0)),  # 1
    Part.LineSegment(App.Vector(30, 70, 0), App.Vector(50, 90, 0)),  # 2
    Part.LineSegment(App.Vector(50, 90, 0), App.Vector(50, 121, 0)),  # 3
    Part.LineSegment(App.Vector(50, 121, 0), App.Vector(30, 166, 0)),  # 4
    Part.LineSegment(App.Vector(30, 166, 0), App.Vector(0, 166, 0)),  # 5
    Part.LineSegment(App.Vector(0, 166, 0), App.Vector(6, 163, 0)),  # 6
    Part.LineSegment(App.Vector(6, 163, 0), App.Vector(12, 143, 0)),  # 7
    Part.LineSegment(App.Vector(12, 143, 0), App.Vector(6, 123, 0)),  # 8
    Part.LineSegment(App.Vector(6, 123, 0), App.Vector(0, 121, 0)),  # 9
    Part.LineSegment(App.Vector(0, 121, 0), App.Vector(11, 112, 0)),  # 10
    Part.ArcOfCircle(Part.Circle(App.Vector(5, 104, 0), App.Vector(0, 0, 1), 10), math.radians(-45), math.radians(53)),  # 11
    Part.LineSegment(App.Vector(12, 97, 0), App.Vector(0, 85, 0)),  # 12
], False)
sketch12.addConstraint([
    Sketcher.Constraint("Coincident", 0, 2, 1, 1),
    Sketcher.Constraint("Coincident", 1, 2, 2, 1),
    Sketcher.Constraint("Coincident", 2, 2, 3, 1),
    Sketcher.Constraint("Coincident", 3, 2, 4, 1),
    Sketcher.Constraint("Coincident", 4, 2, 5, 1),
    Sketcher.Constraint("Coincident", 5, 2, 6, 1),
    Sketcher.Constraint("Coincident", 6, 2, 7, 1),
    Sketcher.Constraint("Coincident", 7, 2, 8, 1),
    Sketcher.Constraint("Coincident", 8, 2, 9, 1),
    Sketcher.Constraint("Coincident", 9, 2, 10, 1),
    Sketcher.Constraint("Tangent", 10, 2, 11, 2),
    Sketcher.Constraint("Tangent", 11, 1, 12, 1),
    Sketcher.Constraint("Coincident", 12, 2, 0, 1),
    Sketcher.Constraint("Vertical", 0),
    Sketcher.Constraint("Horizontal", 1),
    Sketcher.Constraint("Vertical", 3),
    Sketcher.Constraint("Horizontal", 5),
    Sketcher.Constraint("PointOnObject", 0, 2, -2),
    Sketcher.Constraint("PointOnObject", 5, 2, -2),
    Sketcher.Constraint("PointOnObject", 9, 2, -2),
    Sketcher.Constraint("Parallel", 2, 12),
    Sketcher.Constraint("Horizontal", 3, 2, 9, 2),
    Sketcher.Constraint("Vertical", 1, 2, 4, 2),
    Sketcher.Constraint("Vertical", 6, 2, 8, 2),
    Sketcher.Constraint("Equal", 7, 8),
    Sketcher.Constraint("Equal", 6, 9),
    Sketcher.Constraint("Radius", 11, Q("10 mm")),
    Sketcher.Constraint("Angle", 2, Q("45 deg")),
    Sketcher.Constraint("DistanceY", 3, 2, 4, 2, Q("45 mm")),
    Sketcher.Constraint("DistanceX", 1, 1, 1, 2, Q("30 mm")),
    Sketcher.Constraint("DistanceY", -1, 1, 0, 2, Q("70 mm")),
    Sketcher.Constraint("DistanceX", -1, 1, 6, 2, Q("6 mm")),
    Sketcher.Constraint("DistanceX", -1, 1, 7, 2, Q("12 mm")),
    Sketcher.Constraint("Angle", 7, Q("-73.3008 deg")),
    Sketcher.Constraint("Angle", 10, Q("-37.1703 deg")),
    Sketcher.Constraint("Distance", 12, Q("16.903 mm")),
    Sketcher.Constraint("DistanceY", 0, 2, 0, 1, Q("15.2932 mm")),
    Sketcher.Constraint("DistanceY", 3, 1, 3, 2, Q("30.5048 mm")),
])
pad6 = doc.addObject("PartDesign::Pad", "Pad005")
body.addObject(pad6)
pad6.Profile = sketch12
pad6.Length = 30
pad6.Reversed = True

# Sketch on XY plane
sketch13 = doc.addObject("Sketcher::SketchObject", "Sketch012")
body.addObject(sketch13)
sketch13.AttachmentSupport = (doc.XY_Plane, [""])
sketch13.MapMode = "FlatFace"
sketch13.addGeometry([
    Part.LineSegment(App.Vector(30, 55, 0), App.Vector(30, 70, 0)),  # 0
    Part.LineSegment(App.Vector(30, 70, 0), App.Vector(50, 90, 0)),  # 1
    Part.LineSegment(App.Vector(50, 90, 0), App.Vector(50, 121, 0)),  # 2
    Part.LineSegment(App.Vector(50, 121, 0), App.Vector(30, 166, 0)),  # 3
    Part.LineSegment(App.Vector(30, 166, 0), App.Vector(0, 166, 0)),  # 4
    Part.LineSegment(App.Vector(0, 166, 0), App.Vector(6, 163, 0)),  # 5
    Part.LineSegment(App.Vector(6, 163, 0), App.Vector(12, 143, 0)),  # 6
    Part.LineSegment(App.Vector(12, 143, 0), App.Vector(6, 123, 0)),  # 7
    Part.LineSegment(App.Vector(6, 123, 0), App.Vector(0, 121, 0)),  # 8
    Part.LineSegment(App.Vector(0, 121, 0), App.Vector(11, 112, 0)),  # 9
    Part.ArcOfCircle(Part.Circle(App.Vector(5, 104, 0), App.Vector(0, 0, 1), 10), math.radians(-45), math.radians(53)),  # 10
    Part.LineSegment(App.Vector(12, 97, 0), App.Vector(0, 85, 0)),  # 11
    Part.LineSegment(App.Vector(0, 85, 0), App.Vector(0, 55, 0)),  # 12
    Part.LineSegment(App.Vector(0, 55, 0), App.Vector(30, 55, 0)),  # 13
], False)
sketch13.addConstraint([
    Sketcher.Constraint("Coincident", 0, 2, 1, 1),
    Sketcher.Constraint("Coincident", 1, 2, 2, 1),
    Sketcher.Constraint("Coincident", 2, 2, 3, 1),
    Sketcher.Constraint("Coincident", 3, 2, 4, 1),
    Sketcher.Constraint("Coincident", 4, 2, 5, 1),
    Sketcher.Constraint("Coincident", 5, 2, 6, 1),
    Sketcher.Constraint("Coincident", 6, 2, 7, 1),
    Sketcher.Constraint("Coincident", 7, 2, 8, 1),
    Sketcher.Constraint("Coincident", 8, 2, 9, 1),
    Sketcher.Constraint("Tangent", 9, 2, 10, 2),
    Sketcher.Constraint("Tangent", 10, 1, 11, 1),
    Sketcher.Constraint("Coincident", 11, 2, 12, 1),
    Sketcher.Constraint("Coincident", 12, 2, 13, 1),
    Sketcher.Constraint("Coincident", 13, 2, 0, 1),
    Sketcher.Constraint("Vertical", 0),
    Sketcher.Constraint("Vertical", 2),
    Sketcher.Constraint("Horizontal", 4),
    Sketcher.Constraint("Vertical", 12),
    Sketcher.Constraint("Horizontal", 13),
    Sketcher.Constraint("PointOnObject", 4, 2, -2),
    Sketcher.Constraint("PointOnObject", 8, 2, -2),
    Sketcher.Constraint("PointOnObject", 11, 2, -2),
    Sketcher.Constraint("Parallel", 1, 11),
    Sketcher.Constraint("Horizontal", 2, 2, 8, 2),
    Sketcher.Constraint("Vertical", 0, 2, 3, 2),
    Sketcher.Constraint("Vertical", 5, 2, 7, 2),
    Sketcher.Constraint("Equal", 13, 12),
    Sketcher.Constraint("Equal", 6, 7),
    Sketcher.Constraint("Equal", 5, 8),
    Sketcher.Constraint("DistanceX", 4, 2, 4, 1, Q("30 mm")),
    Sketcher.Constraint("Radius", 10, Q("10 mm")),
    Sketcher.Constraint("Angle", 1, Q("45 deg")),
    Sketcher.Constraint("DistanceY", -1, 1, 0, 2, Q("70 mm")),
    Sketcher.Constraint("DistanceX", -1, 1, 5, 2, Q("6 mm")),
    Sketcher.Constraint("DistanceX", -1, 1, 6, 2, Q("12 mm")),
    Sketcher.Constraint("Angle", 6, Q("-73.3008 deg")),
    Sketcher.Constraint("DistanceY", 2, 2, 3, 2, Q("45 mm")),
    Sketcher.Constraint("Angle", 9, Q("-37.1703 deg")),
    Sketcher.Constraint("Distance", 11, Q("16.903 mm")),
    Sketcher.Constraint("DistanceY", 0, 1, 0, 2, Q("14.7068 mm")),
    Sketcher.Constraint("DistanceY", 2, 1, 2, 2, Q("30.5048 mm")),
])
pad7 = doc.addObject("PartDesign::Pad", "Pad006")
body.addObject(pad7)
pad7.Profile = sketch13
pad7.Length = 15
doc.recompute()

datumplane = doc.addObject("PartDesign::Plane", "DatumPlane")
body.addObject(datumplane)
datumplane.AttachmentSupport = (doc.XY_Plane, [""])
datumplane.MapMode = "FlatFace"
datumplane.AttachmentOffset = App.Placement(App.Vector(0, 0, -15), App.Rotation())
mirrored = doc.addObject("PartDesign::Mirrored", "Mirrored")
body.addObject(mirrored)
mirrored.Originals = [pad7]
mirrored.MirrorPlane = (datumplane, [""])
body.Tip = mirrored

doc.recompute()
